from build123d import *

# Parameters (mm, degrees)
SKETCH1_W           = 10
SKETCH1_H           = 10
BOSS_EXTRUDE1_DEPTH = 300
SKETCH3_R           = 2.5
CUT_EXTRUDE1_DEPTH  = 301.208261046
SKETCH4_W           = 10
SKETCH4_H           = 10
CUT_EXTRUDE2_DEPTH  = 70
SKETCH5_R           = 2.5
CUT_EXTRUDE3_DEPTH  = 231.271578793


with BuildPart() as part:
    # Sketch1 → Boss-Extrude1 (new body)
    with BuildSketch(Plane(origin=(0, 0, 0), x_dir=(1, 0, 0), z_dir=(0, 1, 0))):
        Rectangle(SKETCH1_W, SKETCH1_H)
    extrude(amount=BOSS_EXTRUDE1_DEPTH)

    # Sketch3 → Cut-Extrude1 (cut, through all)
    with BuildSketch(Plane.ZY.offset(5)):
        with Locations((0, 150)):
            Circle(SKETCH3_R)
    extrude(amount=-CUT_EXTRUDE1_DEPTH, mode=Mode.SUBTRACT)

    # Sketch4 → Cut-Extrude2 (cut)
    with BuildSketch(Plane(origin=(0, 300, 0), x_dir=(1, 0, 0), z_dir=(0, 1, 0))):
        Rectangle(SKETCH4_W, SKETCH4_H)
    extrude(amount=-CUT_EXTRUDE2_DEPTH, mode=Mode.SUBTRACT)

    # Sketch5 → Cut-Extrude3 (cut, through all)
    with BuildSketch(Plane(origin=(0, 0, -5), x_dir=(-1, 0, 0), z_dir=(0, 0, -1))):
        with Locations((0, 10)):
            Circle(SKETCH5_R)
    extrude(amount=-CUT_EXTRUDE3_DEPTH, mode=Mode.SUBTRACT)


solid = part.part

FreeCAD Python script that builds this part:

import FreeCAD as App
import Part
import Sketcher
from FreeCAD import Vector


def add_polygon(sketch, points):
    """Adds a closed chain of lines whose ends are joined by coincident constraints."""
    first, n = sketch.GeometryCount, len(points)
    for a, b in zip(points, points[1:] + points[:1]):
        sketch.addGeometry(Part.LineSegment(App.Vector(*a, 0), App.Vector(*b, 0)), False)
    for i in range(n):
        sketch.addConstraint(Sketcher.Constraint("Coincident", first + i, 2, first + (i + 1) % n, 1))

doc = App.newDocument("Part")
body = doc.addObject("PartDesign::Body", "Body")

# Sketch on XZ plane
sketch1 = body.newObject("Sketcher::SketchObject", "Sketch")
sketch1.AttachmentSupport = (doc.getObject("XZ_Plane"), [""])
sketch1.MapMode = "FlatFace"
add_polygon(sketch1, [(-5, -5), (-5, 5), (5, 5), (5, -5)])  # lines 0-3
sketch1.addConstraint([
    Sketcher.Constraint("Vertical", 0),
    Sketcher.Constraint("Horizontal", 1),
    Sketcher.Constraint("Vertical", 2),
    Sketcher.Constraint("Horizontal", 3),
    Sketcher.Constraint("Symmetric", 0, 2, 2, 2, -1, 1),
    Sketcher.Constraint("Equal", 3, 0),
    Sketcher.Constraint("DistanceX", 1, 1, 1, 2, 10.0),
])
pad1 = body.newObject("PartDesign::Pad", "Pad")
pad1.Profile = sketch1
pad1.Length = 300
pad1.Reversed = True

# Sketch on YZ plane
sketch2 = body.newObject("Sketcher::SketchObject", "Sketch001")
sketch2.AttachmentSupport = (doc.getObject("YZ_Plane"), [""])
sketch2.MapMode = "FlatFace"
sketch2.AttachmentOffset = App.Placement(Vector(0, 0, -5), App.Rotation())
sketch2.addGeometry(Part.Circle(Vector(150, 0, 0), Vector(0, 0, 1), 2.5), False)
sketch2.addConstraint([
    Sketcher.Constraint("PointOnObject", 0, 3, -1),
    Sketcher.Constraint("Diameter", 0, 5.0),
    Sketcher.Constraint("DistanceX", -1, 1, 0, 3, 150.0),
])
pocket1 = body.newObject("PartDesign::Pocket", "Pocket")
pocket1.Profile = sketch2
pocket1.Type = "ThroughAll"
pocket1.Reversed = True

# Sketch on XZ plane
sketch3 = body.newObject("Sketcher::SketchObject", "Sketch002")
sketch3.AttachmentSupport = (doc.getObject("XZ_Plane"), [""])
sketch3.MapMode = "FlatFace"
sketch3.AttachmentOffset = App.Placement(Vector(0, 0, -300), App.Rotation())
add_polygon(sketch3, [(-5, -5), (-5, 5), (5, 5), (5, -5)])  # lines 0-3
sketch3.addConstraint([
    Sketcher.Constraint("Vertical", 0),
    Sketcher.Constraint("Horizontal", 1),
    Sketcher.Constraint("Vertical", 2),
    Sketcher.Constraint("Horizontal", 3),
    Sketcher.Constraint("Symmetric", 0, 2, 2, 2, -1, 1),
    Sketcher.Constraint("Equal", 3, 0),
    Sketcher.Constraint("DistanceX", 1, 1, 1, 2, 10.0),
])
pocket2 = body.newObject("PartDesign::Pocket", "Pocket001")
pocket2.Profile = sketch3
pocket2.Length = 70
pocket2.Reversed = True

# Sketch on XY plane
sketch4 = body.newObject("Sketcher::SketchObject", "Sketch003")
sketch4.AttachmentSupport = (doc.getObject("XY_Plane"), [""])
sketch4.MapMode = "FlatFace"
sketch4.AttachmentOffset = App.Placement(Vector(0, 0, -5), App.Rotation())
sketch4.addGeometry(Part.Circle(Vector(0, 10, 0), Vector(0, 0, 1), 2.5), False)
sketch4.addConstraint([
    Sketcher.Constraint("PointOnObject", 0, 3, -2),
    Sketcher.Constraint("Diameter", 0, 5.0),
    Sketcher.Constraint("DistanceY", -1, 1, 0, 3, 10.0),
])
pocket3 = body.newObject("PartDesign::Pocket", "Pocket002")
pocket3.Profile = sketch4
pocket3.Type = "ThroughAll"
pocket3.Reversed = True

doc.recompute()
